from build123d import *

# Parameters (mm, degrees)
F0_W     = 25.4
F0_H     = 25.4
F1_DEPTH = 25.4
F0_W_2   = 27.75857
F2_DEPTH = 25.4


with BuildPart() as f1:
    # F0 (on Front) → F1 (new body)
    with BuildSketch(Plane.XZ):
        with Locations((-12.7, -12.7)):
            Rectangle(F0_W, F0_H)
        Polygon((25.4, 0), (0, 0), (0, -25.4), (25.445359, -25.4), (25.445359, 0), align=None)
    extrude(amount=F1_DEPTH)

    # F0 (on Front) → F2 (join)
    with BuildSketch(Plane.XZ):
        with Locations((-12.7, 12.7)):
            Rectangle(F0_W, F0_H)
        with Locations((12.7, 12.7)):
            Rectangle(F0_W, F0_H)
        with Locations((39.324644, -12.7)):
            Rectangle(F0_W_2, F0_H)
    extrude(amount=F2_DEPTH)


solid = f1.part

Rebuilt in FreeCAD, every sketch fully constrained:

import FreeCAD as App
import Part
import Sketcher
Q = App.Units.Quantity


def add_polygon(sketch, points):
    """Adds a closed chain of lines whose ends are joined by coincident constraints."""
    first, n = sketch.GeometryCount, len(points)
    for a, b in zip(points, points[1:] + points[:1]):
        sketch.addGeometry(Part.LineSegment(App.Vector(*a, 0), App.Vector(*b, 0)), False)
    for i in range(n):
        sketch.addConstraint(Sketcher.Constraint("Coincident", first + i, 2, first + (i + 1) % n, 1))

doc = App.newDocument("Part")
params = doc.addObject("Spreadsheet::Sheet", "Params")
for row, (alias, value) in enumerate([
    ("sketch1_height", "1 in"),
    ("pad1_length", "1 in"),
    ("sketch2_width", "2 in"),
    ("sketch2_height", "1 in"),
    ("pad2_length", "1 in"),
], start=1):
    params.set(f"A{row}", alias)
    params.set(f"B{row}", "=" + value)
    params.setAlias(f"B{row}", alias)

body = doc.addObject("PartDesign::Body", "Body")

# Sketch on XZ plane
sketch1 = doc.addObject("Sketcher::SketchObject", "Sketch")
body.addObject(sketch1)
sketch1.AttachmentSupport = (doc.XZ_Plane, [""])
sketch1.MapMode = "FlatFace"
add_polygon(sketch1, [(-25.4, 0), (-25.4, -25.4), (25.445359, -25.4), (25.445359, 0)])  # lines 0-3
sketch1.addConstraint([
    Sketcher.Constraint("Vertical", 0),
    Sketcher.Constraint("Horizontal", 1),
    Sketcher.Constraint("Vertical", 2),
    Sketcher.Constraint("Horizontal", 3),
    Sketcher.Constraint("PointOnObject", 2, 2, -1),
    Sketcher.Constraint("DistanceY", 0, 2, 0, 1, Q("1 in")),
    Sketcher.Constraint("DistanceX", 0, 2, -1, 1, Q("1 in")),
    Sketcher.Constraint("DistanceX", 1, 1, 1, 2, 50.845359),
])
sketch1.setExpression("Constraints[9]", "Params.sketch1_height")
pad1 = doc.addObject("PartDesign::Pad", "Pad")
body.addObject(pad1)
pad1.Profile = sketch1
pad1.setExpression("Length", "Params.pad1_length")

# Sketch on XZ plane
sketch2 = doc.addObject("Sketcher::SketchObject", "Sketch001")
body.addObject(sketch2)
sketch2.AttachmentSupport = (doc.XZ_Plane, [""])
sketch2.MapMode = "FlatFace"
add_polygon(sketch2, [(-25.4, 25.4), (-25.4, 0), (25.4, 0), (25.4, 25.4)])  # lines 0-3
add_polygon(sketch2, [(25.445359, 0), (25.445359, -25.4), (53.203929, -25.4), (53.203929, 0)])  # lines 4-7
sketch2.addConstraint([
    Sketcher.Constraint("Vertical", 0),
    Sketcher.Constraint("Horizontal", 1),
    Sketcher.Constraint("Vertical", 2),
    Sketcher.Constraint("Horizontal", 3),
    Sketcher.Constraint("Vertical", 4),
    Sketcher.Constraint("Horizontal", 5),
    Sketcher.Constraint("Vertical", 6),
    Sketcher.Constraint("Horizontal", 7),
    Sketcher.Constraint("Symmetric", 0, 2, 1, 2, -1, 1),
    Sketcher.Constraint("PointOnObject", 6, 2, -1),
    Sketcher.Constraint("Equal", 2, 4),
    Sketcher.Constraint("DistanceX", 1, 1, 1, 2, Q("2 in")),
    Sketcher.Constraint("DistanceY", 0, 2, 0, 1, Q("1 in")),
    Sketcher.Constraint("DistanceX", 5, 1, 5, 2, 27.75857),
    Sketcher.Constraint("DistanceX", -1, 1, 4, 2, 25.445359),
])
sketch2.setExpression("Constraints[19]", "Params.sketch2_width")
sketch2.setExpression("Constraints[20]", "Params.sketch2_height")
pad2 = doc.addObject("PartDesign::Pad", "Pad001")
body.addObject(pad2)
pad2.Profile = sketch2
pad2.setExpression("Length", "Params.pad2_length")

doc.recompute()
